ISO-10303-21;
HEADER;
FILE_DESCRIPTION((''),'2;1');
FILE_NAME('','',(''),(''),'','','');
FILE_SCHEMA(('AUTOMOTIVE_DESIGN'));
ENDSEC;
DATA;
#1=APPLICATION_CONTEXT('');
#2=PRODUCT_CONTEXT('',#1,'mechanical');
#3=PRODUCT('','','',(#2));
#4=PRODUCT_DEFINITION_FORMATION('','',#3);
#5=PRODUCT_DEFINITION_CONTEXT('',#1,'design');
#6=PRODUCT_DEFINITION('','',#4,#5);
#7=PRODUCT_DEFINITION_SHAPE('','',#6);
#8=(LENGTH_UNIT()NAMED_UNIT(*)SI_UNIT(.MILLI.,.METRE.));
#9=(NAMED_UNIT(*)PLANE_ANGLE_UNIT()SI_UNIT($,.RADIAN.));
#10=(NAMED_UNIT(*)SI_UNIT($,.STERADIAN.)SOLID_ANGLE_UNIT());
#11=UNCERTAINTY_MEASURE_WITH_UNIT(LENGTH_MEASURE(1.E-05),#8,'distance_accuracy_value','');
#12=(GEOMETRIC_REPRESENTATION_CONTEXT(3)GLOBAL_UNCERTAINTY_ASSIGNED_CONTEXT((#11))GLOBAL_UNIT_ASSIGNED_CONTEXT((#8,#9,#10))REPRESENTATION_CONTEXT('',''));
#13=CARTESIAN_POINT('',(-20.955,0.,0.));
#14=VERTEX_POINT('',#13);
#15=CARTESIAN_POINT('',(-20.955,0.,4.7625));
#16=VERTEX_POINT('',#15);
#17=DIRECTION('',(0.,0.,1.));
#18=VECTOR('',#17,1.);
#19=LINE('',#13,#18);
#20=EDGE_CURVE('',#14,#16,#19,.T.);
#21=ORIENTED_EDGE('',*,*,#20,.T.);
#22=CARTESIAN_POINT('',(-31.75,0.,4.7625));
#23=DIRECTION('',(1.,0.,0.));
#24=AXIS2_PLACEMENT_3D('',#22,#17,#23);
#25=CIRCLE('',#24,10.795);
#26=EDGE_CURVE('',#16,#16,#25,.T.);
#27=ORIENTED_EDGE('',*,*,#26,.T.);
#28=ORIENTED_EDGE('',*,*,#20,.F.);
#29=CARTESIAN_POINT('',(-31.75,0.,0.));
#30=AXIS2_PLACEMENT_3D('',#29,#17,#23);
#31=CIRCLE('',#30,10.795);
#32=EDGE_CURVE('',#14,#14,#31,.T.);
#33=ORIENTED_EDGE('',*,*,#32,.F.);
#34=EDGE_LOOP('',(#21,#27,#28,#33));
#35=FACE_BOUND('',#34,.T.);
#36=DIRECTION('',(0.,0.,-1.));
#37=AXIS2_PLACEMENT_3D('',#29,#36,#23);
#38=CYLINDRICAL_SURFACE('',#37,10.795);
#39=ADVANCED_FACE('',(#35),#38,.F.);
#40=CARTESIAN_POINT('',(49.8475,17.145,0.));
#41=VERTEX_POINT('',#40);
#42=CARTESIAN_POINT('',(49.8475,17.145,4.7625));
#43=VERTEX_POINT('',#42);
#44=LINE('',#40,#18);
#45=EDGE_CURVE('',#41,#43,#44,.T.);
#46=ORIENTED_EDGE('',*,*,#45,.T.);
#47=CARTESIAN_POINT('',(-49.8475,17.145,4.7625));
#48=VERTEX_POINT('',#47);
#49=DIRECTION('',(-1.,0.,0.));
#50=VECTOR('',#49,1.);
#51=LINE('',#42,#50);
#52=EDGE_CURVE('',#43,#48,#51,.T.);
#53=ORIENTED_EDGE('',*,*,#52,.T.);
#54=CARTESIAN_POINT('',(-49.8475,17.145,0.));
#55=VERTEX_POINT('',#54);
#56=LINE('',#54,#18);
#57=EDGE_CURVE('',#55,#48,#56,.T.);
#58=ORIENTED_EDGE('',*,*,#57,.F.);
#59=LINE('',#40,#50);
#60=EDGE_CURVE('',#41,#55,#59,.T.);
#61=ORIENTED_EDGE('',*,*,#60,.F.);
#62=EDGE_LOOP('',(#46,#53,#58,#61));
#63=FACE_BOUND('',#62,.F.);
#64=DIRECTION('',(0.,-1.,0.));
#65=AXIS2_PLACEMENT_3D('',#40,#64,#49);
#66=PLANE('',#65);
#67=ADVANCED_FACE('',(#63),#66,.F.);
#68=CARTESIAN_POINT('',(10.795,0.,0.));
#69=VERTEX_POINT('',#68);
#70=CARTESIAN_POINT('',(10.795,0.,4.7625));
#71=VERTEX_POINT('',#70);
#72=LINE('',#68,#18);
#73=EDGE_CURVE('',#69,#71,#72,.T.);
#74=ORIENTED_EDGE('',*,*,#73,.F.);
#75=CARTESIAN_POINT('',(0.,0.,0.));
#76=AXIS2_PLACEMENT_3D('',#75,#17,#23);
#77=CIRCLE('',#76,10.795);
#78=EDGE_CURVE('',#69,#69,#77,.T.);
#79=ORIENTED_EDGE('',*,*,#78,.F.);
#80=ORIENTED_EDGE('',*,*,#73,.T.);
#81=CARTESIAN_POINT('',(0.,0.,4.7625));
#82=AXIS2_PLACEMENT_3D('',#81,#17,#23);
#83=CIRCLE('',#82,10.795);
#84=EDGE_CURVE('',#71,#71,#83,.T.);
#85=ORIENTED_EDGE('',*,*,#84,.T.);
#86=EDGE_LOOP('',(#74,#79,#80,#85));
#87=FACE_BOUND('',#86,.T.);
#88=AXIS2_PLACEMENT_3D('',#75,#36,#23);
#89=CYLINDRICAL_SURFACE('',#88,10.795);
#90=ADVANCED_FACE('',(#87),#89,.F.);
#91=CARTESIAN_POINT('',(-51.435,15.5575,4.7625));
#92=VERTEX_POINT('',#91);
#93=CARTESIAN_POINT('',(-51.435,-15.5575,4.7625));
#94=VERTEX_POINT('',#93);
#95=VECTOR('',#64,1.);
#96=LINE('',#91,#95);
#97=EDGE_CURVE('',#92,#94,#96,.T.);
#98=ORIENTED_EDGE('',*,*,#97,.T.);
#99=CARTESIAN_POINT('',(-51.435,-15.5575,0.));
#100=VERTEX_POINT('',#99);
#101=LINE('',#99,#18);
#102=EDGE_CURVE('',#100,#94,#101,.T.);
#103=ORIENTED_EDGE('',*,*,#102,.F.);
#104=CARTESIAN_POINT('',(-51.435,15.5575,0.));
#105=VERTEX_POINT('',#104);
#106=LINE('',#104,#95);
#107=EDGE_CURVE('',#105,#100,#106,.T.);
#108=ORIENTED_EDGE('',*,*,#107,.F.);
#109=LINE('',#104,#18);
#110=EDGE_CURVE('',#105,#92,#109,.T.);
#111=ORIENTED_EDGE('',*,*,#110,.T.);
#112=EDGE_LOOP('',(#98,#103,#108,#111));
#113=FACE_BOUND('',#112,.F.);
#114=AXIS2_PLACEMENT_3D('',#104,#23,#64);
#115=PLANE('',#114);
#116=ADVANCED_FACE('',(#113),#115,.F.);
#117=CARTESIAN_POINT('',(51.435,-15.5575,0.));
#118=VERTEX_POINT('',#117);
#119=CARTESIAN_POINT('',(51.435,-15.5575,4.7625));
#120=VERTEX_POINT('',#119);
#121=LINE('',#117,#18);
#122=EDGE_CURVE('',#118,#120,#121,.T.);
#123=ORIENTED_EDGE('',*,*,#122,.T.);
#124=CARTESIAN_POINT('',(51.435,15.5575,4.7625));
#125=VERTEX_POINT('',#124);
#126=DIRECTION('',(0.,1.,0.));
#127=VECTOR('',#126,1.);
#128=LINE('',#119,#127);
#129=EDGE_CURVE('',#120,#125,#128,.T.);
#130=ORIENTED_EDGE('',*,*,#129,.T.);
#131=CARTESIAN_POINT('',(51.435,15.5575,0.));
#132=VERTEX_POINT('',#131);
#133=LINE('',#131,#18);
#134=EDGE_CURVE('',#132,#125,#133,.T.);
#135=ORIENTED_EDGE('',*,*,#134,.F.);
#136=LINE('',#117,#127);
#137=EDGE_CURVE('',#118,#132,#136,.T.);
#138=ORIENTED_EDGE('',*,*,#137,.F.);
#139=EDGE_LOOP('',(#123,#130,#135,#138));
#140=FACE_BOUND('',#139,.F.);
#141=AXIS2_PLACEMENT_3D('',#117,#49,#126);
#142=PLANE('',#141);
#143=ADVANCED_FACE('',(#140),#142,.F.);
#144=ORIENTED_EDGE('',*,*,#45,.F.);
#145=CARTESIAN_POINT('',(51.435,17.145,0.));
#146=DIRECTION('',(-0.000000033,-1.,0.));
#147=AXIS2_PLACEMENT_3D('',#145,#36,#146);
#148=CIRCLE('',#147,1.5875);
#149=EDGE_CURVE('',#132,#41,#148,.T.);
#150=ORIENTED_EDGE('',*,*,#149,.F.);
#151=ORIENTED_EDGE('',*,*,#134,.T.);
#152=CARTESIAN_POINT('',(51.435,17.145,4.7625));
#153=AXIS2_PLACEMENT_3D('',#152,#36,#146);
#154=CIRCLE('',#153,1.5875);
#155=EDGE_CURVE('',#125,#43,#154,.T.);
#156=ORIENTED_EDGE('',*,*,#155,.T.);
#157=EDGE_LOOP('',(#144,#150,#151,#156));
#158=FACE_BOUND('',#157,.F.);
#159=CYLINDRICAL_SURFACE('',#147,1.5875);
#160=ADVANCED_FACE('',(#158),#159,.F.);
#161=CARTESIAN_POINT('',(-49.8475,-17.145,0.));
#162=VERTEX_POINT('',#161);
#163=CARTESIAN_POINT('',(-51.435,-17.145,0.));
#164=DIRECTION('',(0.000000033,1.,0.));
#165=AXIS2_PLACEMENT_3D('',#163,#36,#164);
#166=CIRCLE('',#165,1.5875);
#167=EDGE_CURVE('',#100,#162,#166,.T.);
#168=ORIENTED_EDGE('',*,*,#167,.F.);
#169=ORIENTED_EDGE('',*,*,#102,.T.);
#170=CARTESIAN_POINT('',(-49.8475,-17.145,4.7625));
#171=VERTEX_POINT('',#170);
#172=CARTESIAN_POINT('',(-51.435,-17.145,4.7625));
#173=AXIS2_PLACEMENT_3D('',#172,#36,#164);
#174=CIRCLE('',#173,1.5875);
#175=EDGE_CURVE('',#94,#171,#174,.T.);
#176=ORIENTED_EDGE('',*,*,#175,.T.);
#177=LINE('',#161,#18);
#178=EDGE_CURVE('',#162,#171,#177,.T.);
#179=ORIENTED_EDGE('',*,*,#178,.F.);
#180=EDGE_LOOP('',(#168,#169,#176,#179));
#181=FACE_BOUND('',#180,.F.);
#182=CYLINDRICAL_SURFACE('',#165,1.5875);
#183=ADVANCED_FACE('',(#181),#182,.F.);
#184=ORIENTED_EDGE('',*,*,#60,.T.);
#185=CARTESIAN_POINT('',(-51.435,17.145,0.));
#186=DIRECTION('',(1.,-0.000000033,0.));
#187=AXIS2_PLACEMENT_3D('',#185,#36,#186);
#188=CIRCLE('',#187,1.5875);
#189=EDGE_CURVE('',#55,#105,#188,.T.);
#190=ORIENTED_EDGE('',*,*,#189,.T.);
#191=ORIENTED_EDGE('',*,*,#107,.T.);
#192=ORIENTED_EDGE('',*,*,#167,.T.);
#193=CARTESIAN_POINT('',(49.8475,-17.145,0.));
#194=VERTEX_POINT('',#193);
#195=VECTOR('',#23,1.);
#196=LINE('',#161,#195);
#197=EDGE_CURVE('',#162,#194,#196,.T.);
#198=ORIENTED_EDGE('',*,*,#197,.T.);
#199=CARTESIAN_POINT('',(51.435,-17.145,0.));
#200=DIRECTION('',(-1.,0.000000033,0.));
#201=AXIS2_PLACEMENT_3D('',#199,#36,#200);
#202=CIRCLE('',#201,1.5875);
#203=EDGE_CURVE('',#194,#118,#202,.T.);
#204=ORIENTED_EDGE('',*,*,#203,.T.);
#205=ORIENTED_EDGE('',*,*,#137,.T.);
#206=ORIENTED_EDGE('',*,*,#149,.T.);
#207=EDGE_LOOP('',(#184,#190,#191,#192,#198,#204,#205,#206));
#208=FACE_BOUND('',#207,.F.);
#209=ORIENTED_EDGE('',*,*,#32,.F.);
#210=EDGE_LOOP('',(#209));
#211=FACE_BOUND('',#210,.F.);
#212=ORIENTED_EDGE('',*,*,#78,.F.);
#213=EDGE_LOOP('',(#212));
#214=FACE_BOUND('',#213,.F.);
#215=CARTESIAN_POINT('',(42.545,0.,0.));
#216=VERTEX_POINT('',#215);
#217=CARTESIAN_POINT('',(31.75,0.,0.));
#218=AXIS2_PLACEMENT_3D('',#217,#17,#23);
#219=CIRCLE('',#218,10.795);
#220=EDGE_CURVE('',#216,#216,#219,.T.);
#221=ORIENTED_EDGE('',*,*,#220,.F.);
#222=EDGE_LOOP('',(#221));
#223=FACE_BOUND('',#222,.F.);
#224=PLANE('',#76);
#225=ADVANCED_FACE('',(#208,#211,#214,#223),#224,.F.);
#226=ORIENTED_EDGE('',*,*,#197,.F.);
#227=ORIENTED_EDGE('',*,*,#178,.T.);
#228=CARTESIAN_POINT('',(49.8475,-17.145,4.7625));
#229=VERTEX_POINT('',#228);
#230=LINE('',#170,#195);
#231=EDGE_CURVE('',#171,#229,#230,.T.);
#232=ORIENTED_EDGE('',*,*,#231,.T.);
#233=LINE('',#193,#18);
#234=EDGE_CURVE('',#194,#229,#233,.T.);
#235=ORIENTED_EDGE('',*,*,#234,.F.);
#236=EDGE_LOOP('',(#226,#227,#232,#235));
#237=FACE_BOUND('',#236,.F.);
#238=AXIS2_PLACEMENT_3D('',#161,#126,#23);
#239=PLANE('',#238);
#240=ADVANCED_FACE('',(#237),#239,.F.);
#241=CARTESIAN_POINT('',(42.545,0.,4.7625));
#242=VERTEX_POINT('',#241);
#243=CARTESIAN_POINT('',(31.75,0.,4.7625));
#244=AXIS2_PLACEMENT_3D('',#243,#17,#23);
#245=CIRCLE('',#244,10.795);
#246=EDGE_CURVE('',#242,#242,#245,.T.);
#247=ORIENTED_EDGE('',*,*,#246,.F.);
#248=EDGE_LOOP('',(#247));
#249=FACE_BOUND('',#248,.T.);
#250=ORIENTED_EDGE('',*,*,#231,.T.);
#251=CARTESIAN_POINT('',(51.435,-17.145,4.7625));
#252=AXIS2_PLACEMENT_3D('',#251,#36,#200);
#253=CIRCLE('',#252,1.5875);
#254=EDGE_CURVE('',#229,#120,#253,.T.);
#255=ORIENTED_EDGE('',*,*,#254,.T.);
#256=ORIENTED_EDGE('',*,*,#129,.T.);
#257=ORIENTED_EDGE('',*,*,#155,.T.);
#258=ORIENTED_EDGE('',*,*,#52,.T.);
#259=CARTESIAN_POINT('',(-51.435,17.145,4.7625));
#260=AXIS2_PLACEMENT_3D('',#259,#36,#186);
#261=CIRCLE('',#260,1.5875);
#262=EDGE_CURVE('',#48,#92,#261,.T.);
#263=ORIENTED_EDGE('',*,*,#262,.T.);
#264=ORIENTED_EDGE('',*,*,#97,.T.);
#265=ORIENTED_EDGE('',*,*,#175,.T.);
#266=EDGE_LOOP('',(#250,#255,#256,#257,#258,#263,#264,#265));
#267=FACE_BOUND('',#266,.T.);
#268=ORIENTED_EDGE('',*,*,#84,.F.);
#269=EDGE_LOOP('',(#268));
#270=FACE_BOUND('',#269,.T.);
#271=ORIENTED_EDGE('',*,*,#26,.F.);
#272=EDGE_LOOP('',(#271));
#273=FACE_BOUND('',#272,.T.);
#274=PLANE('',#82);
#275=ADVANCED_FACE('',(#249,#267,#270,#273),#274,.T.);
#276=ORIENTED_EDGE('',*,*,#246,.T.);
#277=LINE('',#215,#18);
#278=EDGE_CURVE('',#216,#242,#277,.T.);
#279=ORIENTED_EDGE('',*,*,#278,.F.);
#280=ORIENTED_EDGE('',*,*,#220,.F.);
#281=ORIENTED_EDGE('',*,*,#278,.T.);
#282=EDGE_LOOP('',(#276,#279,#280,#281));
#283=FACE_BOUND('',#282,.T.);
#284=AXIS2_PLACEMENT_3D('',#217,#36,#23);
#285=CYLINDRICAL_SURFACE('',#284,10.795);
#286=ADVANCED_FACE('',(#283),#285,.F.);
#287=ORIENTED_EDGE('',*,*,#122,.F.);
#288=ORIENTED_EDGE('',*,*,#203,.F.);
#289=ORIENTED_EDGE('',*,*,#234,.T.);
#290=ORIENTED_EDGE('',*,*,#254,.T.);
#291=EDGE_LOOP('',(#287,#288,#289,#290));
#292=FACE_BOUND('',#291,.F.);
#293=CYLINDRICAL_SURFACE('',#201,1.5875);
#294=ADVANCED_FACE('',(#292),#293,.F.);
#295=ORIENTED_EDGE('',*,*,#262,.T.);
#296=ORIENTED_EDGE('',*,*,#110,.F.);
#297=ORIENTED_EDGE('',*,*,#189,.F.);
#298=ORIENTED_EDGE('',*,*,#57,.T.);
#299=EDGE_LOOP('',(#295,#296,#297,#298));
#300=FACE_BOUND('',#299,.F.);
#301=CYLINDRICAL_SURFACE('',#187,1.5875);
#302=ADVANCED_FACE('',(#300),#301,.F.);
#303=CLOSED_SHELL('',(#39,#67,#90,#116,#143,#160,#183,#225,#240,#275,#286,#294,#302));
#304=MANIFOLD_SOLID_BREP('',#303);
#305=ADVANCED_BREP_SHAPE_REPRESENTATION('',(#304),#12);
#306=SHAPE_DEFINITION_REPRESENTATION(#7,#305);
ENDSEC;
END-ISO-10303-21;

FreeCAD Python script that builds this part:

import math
import FreeCAD as App
import Part
import Sketcher
from FreeCAD import Vector
Q = App.Units.Quantity

doc = App.newDocument("Part")
params = doc.addObject("Spreadsheet::Sheet", "Params")
for row, (alias, value) in enumerate([
    ("sketch1_diameter", "0.85 in"),
    ("sketch1_radius", "0.0625 in"),
    ("sketch1_width", "3.925 in"),
    ("sketch1_height", "1.225 in"),
    ("pad1_length", "0.1875 in"),
], start=1):
    params.set(f"A{row}", alias)
    params.set(f"B{row}", "=" + value)
    params.setAlias(f"B{row}", alias)

body = doc.addObject("PartDesign::Body", "Body")

# Sketch on XY plane
sketch1 = doc.addObject("Sketcher::SketchObject", "Sketch")
body.addObject(sketch1)
sketch1.AttachmentSupport = (doc.XY_Plane, [""])
sketch1.MapMode = "FlatFace"
sketch1.addGeometry([
    Part.LineSegment(Vector(49.8, 17.1, 0), Vector(-49.8, 17.1, 0)),  # 0
    Part.ArcOfCircle(Part.Circle(Vector(-51.4, 17.1, 0), Vector(0, 0, 1), 1.6), math.radians(-90), math.radians(0)),  # 1
    Part.LineSegment(Vector(-51.4, 15.6, 0), Vector(-51.4, -15.6, 0)),  # 2
    Part.ArcOfCircle(Part.Circle(Vector(-51.4, -17.1, 0), Vector(0, 0, 1), 1.6), math.radians(0), math.radians(90)),  # 3
    Part.LineSegment(Vector(-49.8, -17.1, 0), Vector(49.8, -17.1, 0)),  # 4
    Part.ArcOfCircle(Part.Circle(Vector(51.4, -17.1, 0), Vector(0, 0, 1), 1.6), math.radians(90), math.radians(180)),  # 5
    Part.LineSegment(Vector(51.4, -15.6, 0), Vector(51.4, 15.6, 0)),  # 6
    Part.ArcOfCircle(Part.Circle(Vector(51.4, 17.1, 0), Vector(0, 0, 1), 1.6), math.radians(-180), math.radians(-90)),  # 7
    Part.Circle(Vector(-31.8, 0, 0), Vector(0, 0, 1), 10.8),  # 8
    Part.Circle(Vector(0, 0, 0), Vector(0, 0, 1), 10.8),  # 9
    Part.Circle(Vector(31.8, 0, 0), Vector(0, 0, 1), 10.8),  # 10
], False)
sketch1.addConstraint([
    Sketcher.Constraint("Coincident", 0, 2, 1, 2),
    Sketcher.Constraint("Coincident", 1, 1, 2, 1),
    Sketcher.Constraint("Coincident", 2, 2, 3, 2),
    Sketcher.Constraint("Coincident", 3, 1, 4, 1),
    Sketcher.Constraint("Coincident", 4, 2, 5, 2),
    Sketcher.Constraint("Coincident", 5, 1, 6, 1),
    Sketcher.Constraint("Coincident", 6, 2, 7, 2),
    Sketcher.Constraint("Coincident", 7, 1, 0, 1),
    Sketcher.Constraint("Horizontal", 0),
    Sketcher.Constraint("Vertical", 2),
    Sketcher.Constraint("Horizontal", 4),
    Sketcher.Constraint("Vertical", 6),
    Sketcher.Constraint("Coincident", 9, 3, -1, 1),
    Sketcher.Constraint("Equal", 1, 3),
    Sketcher.Constraint("Equal", 3, 5),
    Sketcher.Constraint("Equal", 5, 7),
    Sketcher.Constraint("Equal", 8, 9),
    Sketcher.Constraint("Equal", 9, 10),
    Sketcher.Constraint("Symmetric", 1, 3, 5, 3, -1, 1),
    Sketcher.Constraint("Symmetric", 3, 3, 7, 3, -1, 1),
    Sketcher.Constraint("Symmetric", 8, 3, 10, 3, -1, 1),
    Sketcher.Constraint("Symmetric", 3, 3, 5, 3, -2),
    Sketcher.Constraint("PointOnObject", 8, 3, -1),
    Sketcher.Constraint("Horizontal", 7, 3, 0, 2),
    Sketcher.Constraint("Horizontal", 5, 3, 3, 1),
    Sketcher.Constraint("Vertical", 3, 3, 1, 1),
    Sketcher.Constraint("Vertical", 7, 3, 5, 1),
    Sketcher.Constraint("Diameter", 8, Q("0.85 in")),
    Sketcher.Constraint("Radius", 1, Q("0.0625 in")),
    Sketcher.Constraint("DistanceX", 8, 3, 10, 3, Q("2.5 in")),
    Sketcher.Constraint("DistanceX", 0, 2, 0, 1, Q("3.925 in")),
    Sketcher.Constraint("DistanceY", 2, 2, 2, 1, Q("1.225 in")),
])
sketch1.setExpression("Constraints[27]", "Params.sketch1_diameter")
sketch1.setExpression("Constraints[28]", "Params.sketch1_radius")
sketch1.setExpression("Constraints[30]", "Params.sketch1_width")
sketch1.setExpression("Constraints[31]", "Params.sketch1_height")
pad1 = doc.addObject("PartDesign::Pad", "Pad")
body.addObject(pad1)
pad1.Profile = sketch1
pad1.setExpression("Length", "Params.pad1_length")

doc.recompute()
